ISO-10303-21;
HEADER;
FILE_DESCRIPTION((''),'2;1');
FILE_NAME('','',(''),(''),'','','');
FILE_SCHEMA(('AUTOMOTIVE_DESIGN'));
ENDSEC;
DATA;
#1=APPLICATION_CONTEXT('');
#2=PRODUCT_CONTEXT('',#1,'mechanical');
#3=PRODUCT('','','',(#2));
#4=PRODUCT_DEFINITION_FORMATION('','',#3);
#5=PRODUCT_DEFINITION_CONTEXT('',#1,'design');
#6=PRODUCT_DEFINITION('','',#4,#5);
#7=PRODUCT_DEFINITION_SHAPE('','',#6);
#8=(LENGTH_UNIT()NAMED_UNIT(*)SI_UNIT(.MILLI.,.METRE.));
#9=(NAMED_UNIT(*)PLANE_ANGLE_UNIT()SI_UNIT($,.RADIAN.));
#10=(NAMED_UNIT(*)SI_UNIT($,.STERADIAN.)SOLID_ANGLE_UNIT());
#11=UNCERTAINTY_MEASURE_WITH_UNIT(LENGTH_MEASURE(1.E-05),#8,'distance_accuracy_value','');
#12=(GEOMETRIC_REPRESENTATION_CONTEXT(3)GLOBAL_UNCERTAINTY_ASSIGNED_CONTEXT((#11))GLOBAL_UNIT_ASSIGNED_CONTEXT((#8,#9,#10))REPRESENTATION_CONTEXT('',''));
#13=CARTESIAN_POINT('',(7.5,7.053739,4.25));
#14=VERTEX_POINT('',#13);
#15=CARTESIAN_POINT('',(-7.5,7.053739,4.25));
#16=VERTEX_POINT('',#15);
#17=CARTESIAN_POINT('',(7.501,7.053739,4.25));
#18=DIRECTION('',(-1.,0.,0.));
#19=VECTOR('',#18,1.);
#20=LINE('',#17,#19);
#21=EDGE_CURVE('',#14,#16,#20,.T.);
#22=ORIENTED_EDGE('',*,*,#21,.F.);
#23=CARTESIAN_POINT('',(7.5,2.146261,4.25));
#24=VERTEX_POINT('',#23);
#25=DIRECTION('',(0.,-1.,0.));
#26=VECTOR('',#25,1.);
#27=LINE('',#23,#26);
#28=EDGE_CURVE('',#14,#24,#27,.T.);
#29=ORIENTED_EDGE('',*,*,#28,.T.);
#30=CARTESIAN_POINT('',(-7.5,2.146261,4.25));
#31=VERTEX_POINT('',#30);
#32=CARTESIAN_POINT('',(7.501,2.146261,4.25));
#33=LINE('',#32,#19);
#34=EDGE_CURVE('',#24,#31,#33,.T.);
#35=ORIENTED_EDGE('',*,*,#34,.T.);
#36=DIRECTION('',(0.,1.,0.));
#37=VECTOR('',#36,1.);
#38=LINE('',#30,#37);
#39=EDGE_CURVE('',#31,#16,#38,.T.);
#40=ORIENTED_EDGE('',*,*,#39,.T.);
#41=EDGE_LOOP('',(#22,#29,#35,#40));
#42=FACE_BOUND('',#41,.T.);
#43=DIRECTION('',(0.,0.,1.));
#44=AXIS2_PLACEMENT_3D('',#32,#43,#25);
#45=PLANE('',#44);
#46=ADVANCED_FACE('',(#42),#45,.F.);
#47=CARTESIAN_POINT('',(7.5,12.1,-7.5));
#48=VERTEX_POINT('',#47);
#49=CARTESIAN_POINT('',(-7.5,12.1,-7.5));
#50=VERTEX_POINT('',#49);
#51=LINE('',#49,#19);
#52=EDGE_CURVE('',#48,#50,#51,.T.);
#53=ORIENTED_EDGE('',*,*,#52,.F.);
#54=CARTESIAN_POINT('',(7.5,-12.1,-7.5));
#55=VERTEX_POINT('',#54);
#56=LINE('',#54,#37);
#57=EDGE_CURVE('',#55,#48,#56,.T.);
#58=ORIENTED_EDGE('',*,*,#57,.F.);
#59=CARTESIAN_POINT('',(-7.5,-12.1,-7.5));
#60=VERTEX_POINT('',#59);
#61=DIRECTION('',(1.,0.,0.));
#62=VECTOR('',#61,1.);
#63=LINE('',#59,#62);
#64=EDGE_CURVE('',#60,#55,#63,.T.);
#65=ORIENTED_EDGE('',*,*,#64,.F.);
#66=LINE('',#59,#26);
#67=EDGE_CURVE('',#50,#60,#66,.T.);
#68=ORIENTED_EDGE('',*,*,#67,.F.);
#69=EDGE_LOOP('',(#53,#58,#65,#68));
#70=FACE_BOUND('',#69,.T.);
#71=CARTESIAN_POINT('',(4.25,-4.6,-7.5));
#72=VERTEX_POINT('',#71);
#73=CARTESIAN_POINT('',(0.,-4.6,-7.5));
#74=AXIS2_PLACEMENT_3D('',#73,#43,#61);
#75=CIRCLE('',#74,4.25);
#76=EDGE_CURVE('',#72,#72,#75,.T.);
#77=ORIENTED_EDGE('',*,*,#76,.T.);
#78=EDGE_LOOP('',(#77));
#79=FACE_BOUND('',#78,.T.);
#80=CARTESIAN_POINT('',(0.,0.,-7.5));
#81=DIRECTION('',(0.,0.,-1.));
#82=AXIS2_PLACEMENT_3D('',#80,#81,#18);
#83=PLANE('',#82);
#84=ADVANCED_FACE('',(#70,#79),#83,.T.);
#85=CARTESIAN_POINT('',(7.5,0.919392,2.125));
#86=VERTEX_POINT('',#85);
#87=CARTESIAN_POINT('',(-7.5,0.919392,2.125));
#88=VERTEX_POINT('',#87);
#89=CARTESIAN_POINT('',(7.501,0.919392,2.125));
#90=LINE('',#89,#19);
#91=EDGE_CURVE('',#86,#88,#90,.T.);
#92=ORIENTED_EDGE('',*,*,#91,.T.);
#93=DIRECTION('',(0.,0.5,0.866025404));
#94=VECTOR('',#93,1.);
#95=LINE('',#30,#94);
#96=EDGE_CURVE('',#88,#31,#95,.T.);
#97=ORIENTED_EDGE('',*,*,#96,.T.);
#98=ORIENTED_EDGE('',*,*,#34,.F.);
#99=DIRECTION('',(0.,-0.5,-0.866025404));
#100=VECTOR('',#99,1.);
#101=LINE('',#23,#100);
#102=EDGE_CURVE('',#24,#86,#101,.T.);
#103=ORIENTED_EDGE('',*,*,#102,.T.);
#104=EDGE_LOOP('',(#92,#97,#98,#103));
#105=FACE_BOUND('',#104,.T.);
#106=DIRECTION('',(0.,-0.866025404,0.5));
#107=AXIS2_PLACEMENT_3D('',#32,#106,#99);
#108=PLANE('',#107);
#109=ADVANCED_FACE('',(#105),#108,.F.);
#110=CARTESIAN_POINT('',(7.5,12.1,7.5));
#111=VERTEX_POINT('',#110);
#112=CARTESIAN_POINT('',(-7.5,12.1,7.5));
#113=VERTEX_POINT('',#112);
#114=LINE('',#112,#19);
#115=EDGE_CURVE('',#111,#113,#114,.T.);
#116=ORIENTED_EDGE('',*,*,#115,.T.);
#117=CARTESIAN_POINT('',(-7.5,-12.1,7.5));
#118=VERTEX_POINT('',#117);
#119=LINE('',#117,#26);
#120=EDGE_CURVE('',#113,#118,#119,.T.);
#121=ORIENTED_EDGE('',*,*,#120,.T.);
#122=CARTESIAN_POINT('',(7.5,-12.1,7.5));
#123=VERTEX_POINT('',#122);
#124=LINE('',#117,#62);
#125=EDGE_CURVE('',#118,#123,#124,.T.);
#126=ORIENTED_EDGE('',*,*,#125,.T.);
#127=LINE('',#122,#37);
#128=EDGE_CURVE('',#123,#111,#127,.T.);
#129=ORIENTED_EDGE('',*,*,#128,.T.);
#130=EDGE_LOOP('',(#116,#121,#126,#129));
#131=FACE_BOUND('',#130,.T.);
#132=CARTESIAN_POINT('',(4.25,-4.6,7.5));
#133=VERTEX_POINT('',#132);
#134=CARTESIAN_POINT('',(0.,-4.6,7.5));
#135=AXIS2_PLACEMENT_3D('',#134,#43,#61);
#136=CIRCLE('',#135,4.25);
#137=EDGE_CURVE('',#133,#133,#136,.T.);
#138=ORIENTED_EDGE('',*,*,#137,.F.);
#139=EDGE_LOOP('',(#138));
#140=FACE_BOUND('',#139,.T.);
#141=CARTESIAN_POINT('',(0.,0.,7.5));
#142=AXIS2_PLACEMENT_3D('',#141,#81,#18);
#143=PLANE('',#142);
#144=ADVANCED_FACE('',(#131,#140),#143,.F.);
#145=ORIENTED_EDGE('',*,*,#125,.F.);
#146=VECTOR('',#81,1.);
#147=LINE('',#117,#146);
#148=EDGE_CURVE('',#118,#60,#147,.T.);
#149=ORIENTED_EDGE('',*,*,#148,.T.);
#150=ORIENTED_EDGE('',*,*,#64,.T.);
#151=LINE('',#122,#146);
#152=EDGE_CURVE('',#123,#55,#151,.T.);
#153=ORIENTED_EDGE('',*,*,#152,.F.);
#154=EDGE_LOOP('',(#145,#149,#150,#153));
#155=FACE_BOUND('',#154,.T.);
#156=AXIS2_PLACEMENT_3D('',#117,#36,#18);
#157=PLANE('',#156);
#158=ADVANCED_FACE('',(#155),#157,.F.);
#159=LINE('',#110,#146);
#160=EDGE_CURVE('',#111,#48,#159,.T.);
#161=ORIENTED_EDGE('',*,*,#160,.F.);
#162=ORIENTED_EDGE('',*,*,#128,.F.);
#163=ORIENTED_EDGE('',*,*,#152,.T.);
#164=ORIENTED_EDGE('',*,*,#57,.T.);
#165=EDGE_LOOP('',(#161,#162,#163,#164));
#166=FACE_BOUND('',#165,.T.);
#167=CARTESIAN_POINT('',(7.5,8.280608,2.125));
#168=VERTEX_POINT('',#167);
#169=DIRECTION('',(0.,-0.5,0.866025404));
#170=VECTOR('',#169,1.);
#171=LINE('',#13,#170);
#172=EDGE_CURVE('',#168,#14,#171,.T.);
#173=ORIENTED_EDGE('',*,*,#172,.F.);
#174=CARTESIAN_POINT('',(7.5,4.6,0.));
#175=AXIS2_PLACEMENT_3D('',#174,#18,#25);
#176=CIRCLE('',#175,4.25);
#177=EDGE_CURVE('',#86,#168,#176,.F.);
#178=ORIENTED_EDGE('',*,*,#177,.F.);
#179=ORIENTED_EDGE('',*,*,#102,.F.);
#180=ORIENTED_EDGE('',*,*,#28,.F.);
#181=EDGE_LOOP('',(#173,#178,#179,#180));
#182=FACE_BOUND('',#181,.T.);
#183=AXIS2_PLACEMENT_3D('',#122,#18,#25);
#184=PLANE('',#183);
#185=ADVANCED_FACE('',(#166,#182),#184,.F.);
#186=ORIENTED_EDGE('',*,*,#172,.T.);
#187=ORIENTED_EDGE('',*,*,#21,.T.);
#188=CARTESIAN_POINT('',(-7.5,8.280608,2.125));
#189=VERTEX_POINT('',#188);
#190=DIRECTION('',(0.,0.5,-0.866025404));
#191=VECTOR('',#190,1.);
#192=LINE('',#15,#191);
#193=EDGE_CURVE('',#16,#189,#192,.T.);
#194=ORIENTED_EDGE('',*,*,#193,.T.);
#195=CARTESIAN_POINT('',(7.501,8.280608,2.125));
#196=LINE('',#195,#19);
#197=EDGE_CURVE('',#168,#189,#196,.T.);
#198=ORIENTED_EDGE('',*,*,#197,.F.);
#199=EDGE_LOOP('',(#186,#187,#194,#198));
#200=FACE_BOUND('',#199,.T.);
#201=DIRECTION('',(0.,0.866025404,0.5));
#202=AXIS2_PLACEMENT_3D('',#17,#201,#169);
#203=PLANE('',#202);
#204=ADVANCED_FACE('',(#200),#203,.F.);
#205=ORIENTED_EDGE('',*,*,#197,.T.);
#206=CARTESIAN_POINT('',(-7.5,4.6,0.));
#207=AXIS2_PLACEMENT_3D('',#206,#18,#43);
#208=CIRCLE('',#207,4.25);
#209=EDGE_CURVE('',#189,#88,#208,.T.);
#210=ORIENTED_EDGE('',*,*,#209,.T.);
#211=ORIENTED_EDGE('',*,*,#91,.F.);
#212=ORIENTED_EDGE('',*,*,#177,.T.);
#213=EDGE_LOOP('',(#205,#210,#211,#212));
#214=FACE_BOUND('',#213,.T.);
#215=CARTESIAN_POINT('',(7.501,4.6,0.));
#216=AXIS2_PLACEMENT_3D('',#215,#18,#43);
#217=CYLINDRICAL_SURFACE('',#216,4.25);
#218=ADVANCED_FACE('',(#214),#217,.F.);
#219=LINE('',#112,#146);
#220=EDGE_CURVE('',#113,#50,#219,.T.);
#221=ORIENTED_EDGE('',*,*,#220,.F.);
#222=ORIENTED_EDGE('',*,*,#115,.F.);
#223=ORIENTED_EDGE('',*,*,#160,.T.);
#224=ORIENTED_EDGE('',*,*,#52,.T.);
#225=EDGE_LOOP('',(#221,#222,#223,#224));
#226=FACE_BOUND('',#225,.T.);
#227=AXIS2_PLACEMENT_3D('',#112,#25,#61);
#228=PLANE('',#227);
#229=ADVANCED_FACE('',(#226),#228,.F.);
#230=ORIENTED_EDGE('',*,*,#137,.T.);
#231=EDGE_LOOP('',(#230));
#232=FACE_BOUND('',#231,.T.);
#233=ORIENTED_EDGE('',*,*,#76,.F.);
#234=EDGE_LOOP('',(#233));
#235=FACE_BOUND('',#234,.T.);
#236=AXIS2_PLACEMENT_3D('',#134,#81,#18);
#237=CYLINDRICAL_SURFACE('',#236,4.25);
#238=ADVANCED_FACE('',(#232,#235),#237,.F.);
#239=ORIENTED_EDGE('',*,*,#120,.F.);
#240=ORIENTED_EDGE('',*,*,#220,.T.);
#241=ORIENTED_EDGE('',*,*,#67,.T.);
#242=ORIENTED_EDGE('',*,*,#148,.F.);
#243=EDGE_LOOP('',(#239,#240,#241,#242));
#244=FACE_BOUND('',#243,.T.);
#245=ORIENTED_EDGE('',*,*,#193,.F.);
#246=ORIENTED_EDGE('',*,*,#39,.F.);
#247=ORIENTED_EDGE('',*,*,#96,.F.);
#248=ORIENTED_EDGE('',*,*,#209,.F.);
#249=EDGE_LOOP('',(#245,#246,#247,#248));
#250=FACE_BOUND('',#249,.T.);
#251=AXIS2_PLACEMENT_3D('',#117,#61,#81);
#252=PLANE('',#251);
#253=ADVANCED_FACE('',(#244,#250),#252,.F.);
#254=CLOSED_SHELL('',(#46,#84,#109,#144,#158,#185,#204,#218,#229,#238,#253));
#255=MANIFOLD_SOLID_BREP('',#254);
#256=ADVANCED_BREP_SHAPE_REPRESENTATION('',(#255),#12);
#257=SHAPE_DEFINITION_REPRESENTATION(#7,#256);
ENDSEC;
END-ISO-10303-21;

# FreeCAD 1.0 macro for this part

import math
import FreeCAD as App
import Part
import Sketcher
from FreeCAD import Vector
Q = App.Units.Quantity


def add_polygon(sketch, points):
    """Adds a closed chain of lines whose ends are joined by coincident constraints."""
    first, n = sketch.GeometryCount, len(points)
    for a, b in zip(points, points[1:] + points[:1]):
        sketch.addGeometry(Part.LineSegment(App.Vector(*a, 0), App.Vector(*b, 0)), False)
    for i in range(n):
        sketch.addConstraint(Sketcher.Constraint("Coincident", first + i, 2, first + (i + 1) % n, 1))

doc = App.newDocument("Part")
body = doc.addObject("PartDesign::Body", "Body")

# Sketch on XY plane
sketch1 = body.newObject("Sketcher::SketchObject", "Sketch")
sketch1.AttachmentSupport = (doc.getObject("XY_Plane"), [""])
sketch1.MapMode = "FlatFace"
add_polygon(sketch1, [(-7.5, 12.1), (-7.5, -12.1), (7.5, -12.1), (7.5, 12.1)])  # lines 0-3
sketch1.addGeometry(Part.Circle(Vector(0, -4.6, 0), Vector(0, 0, 1), 4.2), False)  # 4
sketch1.addConstraint([
    Sketcher.Constraint("Vertical", 0),
    Sketcher.Constraint("Horizontal", 1),
    Sketcher.Constraint("Vertical", 2),
    Sketcher.Constraint("Horizontal", 3),
    Sketcher.Constraint("Symmetric", 0, 2, 2, 2, -1, 1),
    Sketcher.Constraint("PointOnObject", 4, 3, -2),
    Sketcher.Constraint("Diameter", 4, 8.5),
    Sketcher.Constraint("DistanceX", 1, 1, 1, 2, 15.0),
    Sketcher.Constraint("DistanceY", 0, 2, 0, 1, 24.2),
    Sketcher.Constraint("DistanceY", 4, 3, -1, 1, 4.6),
])
pad1 = body.newObject("PartDesign::Pad", "Pad")
pad1.Profile = sketch1
pad1.Length = 15
pad1.Midplane = True

# Sketch on YZ plane
sketch2 = body.newObject("Sketcher::SketchObject", "Sketch001")
sketch2.AttachmentSupport = (doc.getObject("YZ_Plane"), [""])
sketch2.MapMode = "FlatFace"
sketch2.AttachmentOffset = App.Placement(Vector(0, 0, -7.5), App.Rotation())
sketch2.addGeometry([
    Part.LineSegment(Vector(2.1, 4.2, 0), Vector(7.1, 4.2, 0)),
    Part.LineSegment(Vector(7.1, 4.2, 0), Vector(8.3, 2.1, 0)),
    Part.ArcOfCircle(Part.Circle(Vector(4.6, 0, 0), Vector(0, 0, 1), 4.2), math.radians(150), math.radians(390)),
    Part.LineSegment(Vector(0.9, 2.1, 0), Vector(2.1, 4.2, 0)),
], False)
sketch2.addConstraint([
    Sketcher.Constraint("Coincident", 0, 2, 1, 1),
    Sketcher.Constraint("Tangent", 1, 2, 2, 2),
    Sketcher.Constraint("Tangent", 2, 1, 3, 1),
    Sketcher.Constraint("Coincident", 3, 2, 0, 1),
    Sketcher.Constraint("Horizontal", 0),
    Sketcher.Constraint("PointOnObject", 2, 3, -1),
    Sketcher.Constraint("Horizontal", 1, 2, 2, 1),
    Sketcher.Constraint("Angle", 1, Q("-60 deg")),
    Sketcher.Constraint("Radius", 2, 4.25),
    Sketcher.Constraint("DistanceX", -1, 1, 2, 3, 4.6),
    Sketcher.Constraint("DistanceY", -1, 1, 0, 2, 4.25),
])
pocket1 = body.newObject("PartDesign::Pocket", "Pocket")
pocket1.Profile = sketch2
pocket1.Type = "UpToFirst"
pocket1.Reversed = True

doc.recompute()
